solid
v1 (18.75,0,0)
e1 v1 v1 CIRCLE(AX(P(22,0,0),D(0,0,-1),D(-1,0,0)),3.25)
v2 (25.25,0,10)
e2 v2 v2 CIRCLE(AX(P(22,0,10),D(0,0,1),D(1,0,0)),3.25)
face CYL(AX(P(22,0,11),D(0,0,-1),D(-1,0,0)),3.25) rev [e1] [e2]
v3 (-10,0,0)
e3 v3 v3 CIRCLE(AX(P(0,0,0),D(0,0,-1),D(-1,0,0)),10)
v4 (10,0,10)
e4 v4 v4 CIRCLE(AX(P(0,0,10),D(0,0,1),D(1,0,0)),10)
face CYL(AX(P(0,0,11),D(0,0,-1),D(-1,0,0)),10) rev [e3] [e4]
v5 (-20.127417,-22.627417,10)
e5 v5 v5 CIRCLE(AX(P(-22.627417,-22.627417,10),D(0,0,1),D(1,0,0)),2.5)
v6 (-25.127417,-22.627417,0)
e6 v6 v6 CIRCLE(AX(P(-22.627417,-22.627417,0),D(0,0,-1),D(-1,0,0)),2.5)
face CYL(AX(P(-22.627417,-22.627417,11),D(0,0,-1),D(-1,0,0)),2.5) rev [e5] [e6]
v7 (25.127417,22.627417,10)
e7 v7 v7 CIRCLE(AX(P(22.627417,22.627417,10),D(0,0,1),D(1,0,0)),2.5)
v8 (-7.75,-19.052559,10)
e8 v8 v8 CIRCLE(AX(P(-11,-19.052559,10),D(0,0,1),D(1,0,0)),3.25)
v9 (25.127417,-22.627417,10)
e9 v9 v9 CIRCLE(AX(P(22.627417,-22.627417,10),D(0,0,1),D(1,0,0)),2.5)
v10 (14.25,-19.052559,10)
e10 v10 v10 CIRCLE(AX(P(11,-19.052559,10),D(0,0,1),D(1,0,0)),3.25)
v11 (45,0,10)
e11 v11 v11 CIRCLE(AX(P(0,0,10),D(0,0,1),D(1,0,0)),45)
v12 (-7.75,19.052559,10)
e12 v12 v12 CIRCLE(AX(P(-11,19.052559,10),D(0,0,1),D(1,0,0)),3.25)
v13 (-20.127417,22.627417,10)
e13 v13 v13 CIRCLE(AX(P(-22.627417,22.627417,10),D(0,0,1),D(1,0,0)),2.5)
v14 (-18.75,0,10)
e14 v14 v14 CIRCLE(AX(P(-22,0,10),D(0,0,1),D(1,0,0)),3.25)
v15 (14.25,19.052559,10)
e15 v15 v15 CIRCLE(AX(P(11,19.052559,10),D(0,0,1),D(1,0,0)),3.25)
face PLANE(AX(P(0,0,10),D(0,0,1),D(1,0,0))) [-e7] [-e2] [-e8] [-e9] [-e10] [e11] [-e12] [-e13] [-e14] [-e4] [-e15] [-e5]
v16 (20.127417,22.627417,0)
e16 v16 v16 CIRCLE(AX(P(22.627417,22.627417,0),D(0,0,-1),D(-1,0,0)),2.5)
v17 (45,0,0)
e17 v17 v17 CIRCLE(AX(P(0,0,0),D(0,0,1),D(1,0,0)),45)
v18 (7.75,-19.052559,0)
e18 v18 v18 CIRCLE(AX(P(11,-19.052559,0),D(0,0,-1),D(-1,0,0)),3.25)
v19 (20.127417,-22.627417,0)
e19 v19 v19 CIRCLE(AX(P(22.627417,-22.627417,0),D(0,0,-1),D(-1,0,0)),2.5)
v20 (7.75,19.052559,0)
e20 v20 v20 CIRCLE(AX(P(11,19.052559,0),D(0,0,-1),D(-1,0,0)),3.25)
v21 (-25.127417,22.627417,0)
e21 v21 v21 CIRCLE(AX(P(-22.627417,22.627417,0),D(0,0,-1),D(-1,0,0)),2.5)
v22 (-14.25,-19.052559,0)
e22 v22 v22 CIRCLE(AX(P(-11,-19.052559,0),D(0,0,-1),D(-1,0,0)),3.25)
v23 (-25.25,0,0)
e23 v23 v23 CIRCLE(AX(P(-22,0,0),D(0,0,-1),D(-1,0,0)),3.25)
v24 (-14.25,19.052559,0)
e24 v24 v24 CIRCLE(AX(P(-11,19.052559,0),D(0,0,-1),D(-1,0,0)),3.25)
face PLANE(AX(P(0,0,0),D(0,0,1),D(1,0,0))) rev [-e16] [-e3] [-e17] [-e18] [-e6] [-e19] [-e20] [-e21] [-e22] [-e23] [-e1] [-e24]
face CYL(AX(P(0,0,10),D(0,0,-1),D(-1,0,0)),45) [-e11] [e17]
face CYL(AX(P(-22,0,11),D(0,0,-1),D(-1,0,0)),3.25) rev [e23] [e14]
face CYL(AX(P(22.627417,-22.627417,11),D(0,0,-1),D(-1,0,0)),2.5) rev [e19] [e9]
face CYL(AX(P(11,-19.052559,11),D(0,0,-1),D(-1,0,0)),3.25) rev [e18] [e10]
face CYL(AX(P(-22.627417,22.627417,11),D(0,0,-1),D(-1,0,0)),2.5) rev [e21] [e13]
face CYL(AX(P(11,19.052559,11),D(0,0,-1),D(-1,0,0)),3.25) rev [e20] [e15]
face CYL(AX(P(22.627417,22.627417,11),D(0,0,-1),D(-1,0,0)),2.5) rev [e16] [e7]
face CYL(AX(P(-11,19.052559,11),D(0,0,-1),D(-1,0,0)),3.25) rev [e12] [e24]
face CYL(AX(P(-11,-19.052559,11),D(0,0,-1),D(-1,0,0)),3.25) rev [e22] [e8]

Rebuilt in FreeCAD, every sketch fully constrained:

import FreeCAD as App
import Part
import Sketcher

V = App.Vector

doc = App.newDocument("Part")
body = doc.addObject("PartDesign::Body", "Body")

# Sketch on XY plane
sketch1 = body.newObject("Sketcher::SketchObject", "Sketch")
sketch1.AttachmentSupport = (doc.getObject("XY_Plane"), [""])
sketch1.MapMode = "FlatFace"
sketch1.addGeometry(Part.Circle(V(0, 0, 0), V(0, 0, 1), 45), False)
sketch1.addConstraint([
    Sketcher.Constraint("Coincident", 0, 3, -1, 1),
    Sketcher.Constraint("Diameter", 0, 90.0),
])
pad1 = body.newObject("PartDesign::Pad", "Pad")
pad1.Profile = sketch1
pad1.Length = 10

# Sketch on XY plane
sketch2 = body.newObject("Sketcher::SketchObject", "Sketch001")
sketch2.AttachmentSupport = (doc.getObject("XY_Plane"), [""])
sketch2.MapMode = "FlatFace"
sketch2.addGeometry([
    Part.Circle(V(0, 0, 0), V(0, 0, 1), 10),  # 0
    Part.Circle(V(22, 0, 0), V(0, 0, 1), 3.25),  # 1
    Part.Circle(V(11, 19.052559, 0), V(0, 0, 1), 3.25),  # 2
    Part.Circle(V(-11, 19.052559, 0), V(0, 0, 1), 3.25),  # 3
    Part.Circle(V(-22, 0, 0), V(0, 0, 1), 3.25),  # 4
    Part.Circle(V(-11, -19.052559, 0), V(0, 0, 1), 3.25),  # 5
    Part.Circle(V(11, -19.052559, 0), V(0, 0, 1), 3.25),  # 6
    Part.Circle(V(22.627417, 22.627417, 0), V(0, 0, 1), 2.5),  # 7
    Part.Circle(V(-22.627417, 22.627417, 0), V(0, 0, 1), 2.5),  # 8
    Part.Circle(V(-22.627417, -22.627417, 0), V(0, 0, 1), 2.5),  # 9
    Part.Circle(V(22.627417, -22.627417, 0), V(0, 0, 1), 2.5),  # 10
], False)
sketch2.addConstraint([
    Sketcher.Constraint("Coincident", 0, 3, -1, 1),
    Sketcher.Constraint("Equal", 1, 2),
    Sketcher.Constraint("Equal", 2, 3),
    Sketcher.Constraint("Equal", 3, 4),
    Sketcher.Constraint("Equal", 4, 5),
    Sketcher.Constraint("Equal", 5, 6),
    Sketcher.Constraint("Equal", 7, 8),
    Sketcher.Constraint("Equal", 8, 9),
    Sketcher.Constraint("Equal", 9, 10),
    Sketcher.Constraint("Symmetric", 1, 3, 4, 3, -1, 1),
    Sketcher.Constraint("Symmetric", 2, 3, 5, 3, -1, 1),
    Sketcher.Constraint("Symmetric", 3, 3, 6, 3, -1, 1),
    Sketcher.Constraint("Symmetric", 7, 3, 9, 3, -1, 1),
    Sketcher.Constraint("Symmetric", 8, 3, 10, 3, -1, 1),
    Sketcher.Constraint("Symmetric", 2, 3, 3, 3, -2),
    Sketcher.Constraint("Symmetric", 7, 3, 8, 3, -2),
    Sketcher.Constraint("PointOnObject", 1, 3, -1),
    Sketcher.Constraint("Diameter", 0, 20.0),
    Sketcher.Constraint("Diameter", 7, 5.0),
    Sketcher.Constraint("Diameter", 1, 6.5),
    Sketcher.Constraint("DistanceX", -1, 1, 1, 3, 22.0),
    Sketcher.Constraint("DistanceX", -1, 1, 2, 3, 11.0),
    Sketcher.Constraint("DistanceY", -1, 1, 2, 3, 19.052559),
    Sketcher.Constraint("DistanceY", 2, 3, 7, 3, 3.574858),
    Sketcher.Constraint("DistanceX", -1, 1, 7, 3, 22.627417),
])
pocket1 = body.newObject("PartDesign::Pocket", "Pocket")
pocket1.Profile = sketch2
pocket1.Length = 11
pocket1.Reversed = True

doc.recompute()
